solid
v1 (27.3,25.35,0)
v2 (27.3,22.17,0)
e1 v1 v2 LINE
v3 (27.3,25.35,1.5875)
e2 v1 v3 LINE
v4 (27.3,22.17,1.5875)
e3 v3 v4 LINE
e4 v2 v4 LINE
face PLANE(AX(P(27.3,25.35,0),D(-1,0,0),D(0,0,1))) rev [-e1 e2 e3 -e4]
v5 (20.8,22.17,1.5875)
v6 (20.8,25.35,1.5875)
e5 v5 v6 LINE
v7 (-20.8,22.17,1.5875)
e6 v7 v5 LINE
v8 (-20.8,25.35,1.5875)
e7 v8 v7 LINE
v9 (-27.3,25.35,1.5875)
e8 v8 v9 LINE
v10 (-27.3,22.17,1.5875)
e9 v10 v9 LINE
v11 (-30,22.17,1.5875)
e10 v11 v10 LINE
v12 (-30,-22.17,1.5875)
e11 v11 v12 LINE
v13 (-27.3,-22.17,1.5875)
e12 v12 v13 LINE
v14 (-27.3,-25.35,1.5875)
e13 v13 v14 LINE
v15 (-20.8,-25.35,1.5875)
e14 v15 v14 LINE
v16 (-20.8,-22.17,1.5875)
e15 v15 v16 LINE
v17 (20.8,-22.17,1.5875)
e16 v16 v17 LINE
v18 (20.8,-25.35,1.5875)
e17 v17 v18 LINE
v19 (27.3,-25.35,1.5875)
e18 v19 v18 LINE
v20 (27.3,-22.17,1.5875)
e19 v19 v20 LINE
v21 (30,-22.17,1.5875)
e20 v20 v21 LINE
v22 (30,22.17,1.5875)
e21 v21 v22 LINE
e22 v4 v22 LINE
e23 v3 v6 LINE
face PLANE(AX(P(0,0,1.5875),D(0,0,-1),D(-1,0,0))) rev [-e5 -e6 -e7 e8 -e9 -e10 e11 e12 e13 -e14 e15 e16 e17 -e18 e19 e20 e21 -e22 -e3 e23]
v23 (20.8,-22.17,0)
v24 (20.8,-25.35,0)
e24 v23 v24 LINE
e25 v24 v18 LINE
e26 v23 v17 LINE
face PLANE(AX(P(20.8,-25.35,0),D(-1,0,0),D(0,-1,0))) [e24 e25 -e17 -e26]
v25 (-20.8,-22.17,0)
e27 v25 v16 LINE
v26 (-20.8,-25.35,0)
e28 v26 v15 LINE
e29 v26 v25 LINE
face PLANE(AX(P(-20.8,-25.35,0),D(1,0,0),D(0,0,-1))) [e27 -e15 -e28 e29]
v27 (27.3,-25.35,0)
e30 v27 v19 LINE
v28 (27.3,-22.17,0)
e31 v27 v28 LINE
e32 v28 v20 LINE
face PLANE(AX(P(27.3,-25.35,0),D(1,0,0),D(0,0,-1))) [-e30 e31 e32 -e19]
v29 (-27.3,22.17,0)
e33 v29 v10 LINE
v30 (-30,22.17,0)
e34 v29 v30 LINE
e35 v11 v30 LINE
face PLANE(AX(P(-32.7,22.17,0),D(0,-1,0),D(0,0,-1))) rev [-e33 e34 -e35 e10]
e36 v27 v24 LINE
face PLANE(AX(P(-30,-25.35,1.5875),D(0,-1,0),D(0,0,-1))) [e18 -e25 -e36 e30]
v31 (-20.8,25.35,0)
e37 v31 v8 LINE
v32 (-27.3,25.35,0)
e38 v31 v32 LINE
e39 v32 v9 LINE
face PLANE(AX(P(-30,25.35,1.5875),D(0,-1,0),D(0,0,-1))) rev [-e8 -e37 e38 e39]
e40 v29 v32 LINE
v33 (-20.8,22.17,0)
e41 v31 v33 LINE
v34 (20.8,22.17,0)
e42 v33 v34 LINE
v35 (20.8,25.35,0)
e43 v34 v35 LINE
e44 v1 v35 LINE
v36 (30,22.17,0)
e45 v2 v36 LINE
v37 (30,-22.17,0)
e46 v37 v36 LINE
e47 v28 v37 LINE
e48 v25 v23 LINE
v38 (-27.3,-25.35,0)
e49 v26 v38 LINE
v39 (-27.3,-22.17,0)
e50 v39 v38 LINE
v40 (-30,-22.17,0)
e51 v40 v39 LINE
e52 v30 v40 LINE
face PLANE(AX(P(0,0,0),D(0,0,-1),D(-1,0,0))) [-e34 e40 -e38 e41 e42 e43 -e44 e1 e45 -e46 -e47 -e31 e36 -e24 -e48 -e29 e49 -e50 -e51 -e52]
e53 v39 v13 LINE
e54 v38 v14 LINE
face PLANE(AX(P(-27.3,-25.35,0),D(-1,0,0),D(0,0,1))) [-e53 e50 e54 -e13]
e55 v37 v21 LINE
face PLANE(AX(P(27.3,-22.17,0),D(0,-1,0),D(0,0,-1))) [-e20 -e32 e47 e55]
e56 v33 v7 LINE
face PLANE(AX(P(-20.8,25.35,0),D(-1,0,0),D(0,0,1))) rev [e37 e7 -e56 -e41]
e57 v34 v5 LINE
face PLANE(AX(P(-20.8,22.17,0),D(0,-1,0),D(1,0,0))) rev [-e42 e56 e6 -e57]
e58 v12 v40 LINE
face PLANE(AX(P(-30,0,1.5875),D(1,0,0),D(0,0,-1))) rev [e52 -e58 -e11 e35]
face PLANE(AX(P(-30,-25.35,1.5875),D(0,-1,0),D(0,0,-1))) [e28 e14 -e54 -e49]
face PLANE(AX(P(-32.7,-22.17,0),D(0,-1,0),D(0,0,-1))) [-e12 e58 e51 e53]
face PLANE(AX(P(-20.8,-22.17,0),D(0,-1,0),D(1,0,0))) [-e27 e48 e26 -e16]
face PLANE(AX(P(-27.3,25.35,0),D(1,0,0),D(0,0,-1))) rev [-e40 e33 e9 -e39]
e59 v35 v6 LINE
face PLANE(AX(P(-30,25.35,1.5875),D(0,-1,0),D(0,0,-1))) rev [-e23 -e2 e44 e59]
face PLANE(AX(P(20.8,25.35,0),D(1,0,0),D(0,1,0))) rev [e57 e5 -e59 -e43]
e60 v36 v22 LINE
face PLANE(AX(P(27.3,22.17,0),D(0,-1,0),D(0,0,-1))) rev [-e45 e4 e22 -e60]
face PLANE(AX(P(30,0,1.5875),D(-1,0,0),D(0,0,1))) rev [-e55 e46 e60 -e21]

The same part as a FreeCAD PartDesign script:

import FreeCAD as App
import Part
import Sketcher
from FreeCAD import Vector

doc = App.newDocument("Part")
body = doc.addObject("PartDesign::Body", "Body")

# Sketch on XY plane
sketch1 = doc.addObject("Sketcher::SketchObject", "Sketch")
body.addObject(sketch1)
sketch1.AttachmentSupport = (doc.XY_Plane, [""])
sketch1.MapMode = "FlatFace"
sketch1.addGeometry(Part.LineSegment(Vector(-30, 25, 0), Vector(-30, 0, 0)), False)
sketch1.addGeometry(Part.LineSegment(Vector(-30, 0, 0), Vector(30, 0, 0)), False)
sketch1.addGeometry(Part.LineSegment(Vector(30, 0, 0), Vector(30, 25, 0)), False)
sketch1.addGeometry(Part.LineSegment(Vector(30, 25, 0), Vector(-30, 25, 0)), False)
sketch1.addConstraint(Sketcher.Constraint("Coincident", 0, 2, 1, 1))
sketch1.addConstraint(Sketcher.Constraint("Coincident", 1, 2, 2, 1))
sketch1.addConstraint(Sketcher.Constraint("Coincident", 2, 2, 3, 1))
sketch1.addConstraint(Sketcher.Constraint("Coincident", 3, 2, 0, 1))
sketch1.addConstraint(Sketcher.Constraint("Vertical", 0))
sketch1.addConstraint(Sketcher.Constraint("Horizontal", 1))
sketch1.addConstraint(Sketcher.Constraint("Vertical", 2))
sketch1.addConstraint(Sketcher.Constraint("Horizontal", 3))
sketch1.addConstraint(Sketcher.Constraint("Symmetric", 0, 2, 1, 2, -1, 1))
sketch1.addConstraint(Sketcher.Constraint("DistanceX", 1, 1, 1, 2, 60.0))
sketch1.addConstraint(Sketcher.Constraint("DistanceY", 0, 2, 0, 1, 25.35))
pad1 = doc.addObject("PartDesign::Pad", "Pad")
body.addObject(pad1)
pad1.Profile = sketch1
pad1.Length = 1.5875

# Sketch on XY plane
sketch2 = doc.addObject("Sketcher::SketchObject", "Sketch001")
body.addObject(sketch2)
sketch2.AttachmentSupport = (doc.XY_Plane, [""])
sketch2.MapMode = "FlatFace"
sketch2.AttachmentOffset = App.Placement(Vector(0, 0, 1.5875), App.Rotation())
sketch2.addGeometry(Part.LineSegment(Vector(-20.8, 25.4, 0), Vector(-20.8, 22.2, 0)), False)
sketch2.addGeometry(Part.LineSegment(Vector(-20.8, 22.2, 0), Vector(20.8, 22.2, 0)), False)
sketch2.addGeometry(Part.LineSegment(Vector(20.8, 22.2, 0), Vector(20.8, 25.4, 0)), False)
sketch2.addGeometry(Part.LineSegment(Vector(20.8, 25.4, 0), Vector(-20.8, 25.4, 0)), False)
sketch2.addGeometry(Part.LineSegment(Vector(27.3, 25.4, 0), Vector(27.3, 22.2, 0)), False)
sketch2.addGeometry(Part.LineSegment(Vector(27.3, 22.2, 0), Vector(32.7, 22.2, 0)), False)
sketch2.addGeometry(Part.LineSegment(Vector(32.7, 22.2, 0), Vector(32.7, 25.4, 0)), False)
sketch2.addGeometry(Part.LineSegment(Vector(32.7, 25.4, 0), Vector(27.3, 25.4, 0)), False)
sketch2.addGeometry(Part.LineSegment(Vector(-32.7, 25.4, 0), Vector(-32.7, 22.2, 0)), False)
sketch2.addGeometry(Part.LineSegment(Vector(-32.7, 22.2, 0), Vector(-27.3, 22.2, 0)), False)
sketch2.addGeometry(Part.LineSegment(Vector(-27.3, 22.2, 0), Vector(-27.3, 25.4, 0)), False)
sketch2.addGeometry(Part.LineSegment(Vector(-27.3, 25.4, 0), Vector(-32.7, 25.4, 0)), False)
sketch2.addConstraint(Sketcher.Constraint("Coincident", 0, 2, 1, 1))
sketch2.addConstraint(Sketcher.Constraint("Coincident", 1, 2, 2, 1))
sketch2.addConstraint(Sketcher.Constraint("Coincident", 2, 2, 3, 1))
sketch2.addConstraint(Sketcher.Constraint("Coincident", 3, 2, 0, 1))
sketch2.addConstraint(Sketcher.Constraint("Coincident", 4, 2, 5, 1))
sketch2.addConstraint(Sketcher.Constraint("Coincident", 5, 2, 6, 1))
sketch2.addConstraint(Sketcher.Constraint("Coincident", 6, 2, 7, 1))
sketch2.addConstraint(Sketcher.Constraint("Coincident", 7, 2, 4, 1))
sketch2.addConstraint(Sketcher.Constraint("Coincident", 8, 2, 9, 1))
sketch2.addConstraint(Sketcher.Constraint("Coincident", 9, 2, 10, 1))
sketch2.addConstraint(Sketcher.Constraint("Coincident", 10, 2, 11, 1))
sketch2.addConstraint(Sketcher.Constraint("Coincident", 11, 2, 8, 1))
sketch2.addConstraint(Sketcher.Constraint("Vertical", 0))
sketch2.addConstraint(Sketcher.Constraint("Horizontal", 1))
sketch2.addConstraint(Sketcher.Constraint("Vertical", 2))
sketch2.addConstraint(Sketcher.Constraint("Horizontal", 3))
sketch2.addConstraint(Sketcher.Constraint("Vertical", 4))
sketch2.addConstraint(Sketcher.Constraint("Horizontal", 5))
sketch2.addConstraint(Sketcher.Constraint("Vertical", 6))
sketch2.addConstraint(Sketcher.Constraint("Horizontal", 7))
sketch2.addConstraint(Sketcher.Constraint("Vertical", 8))
sketch2.addConstraint(Sketcher.Constraint("Horizontal", 9))
sketch2.addConstraint(Sketcher.Constraint("Vertical", 10))
sketch2.addConstraint(Sketcher.Constraint("Horizontal", 11))
sketch2.addConstraint(Sketcher.Constraint("Symmetric", 5, 2, 8, 2, -2))
sketch2.addConstraint(Sketcher.Constraint("Symmetric", 7, 2, 10, 2, -2))
sketch2.addConstraint(Sketcher.Constraint("Horizontal", 1, 2, 4, 2))
sketch2.addConstraint(Sketcher.Constraint("Horizontal", 3, 2, 6, 2))
sketch2.addConstraint(Sketcher.Constraint("DistanceX", 1, 1, 1, 2, 41.6))
sketch2.addConstraint(Sketcher.Constraint("DistanceX", 5, 1, 5, 2, 5.4))
sketch2.addConstraint(Sketcher.Constraint("DistanceX", 8, 2, 4, 2, 60.0))
sketch2.addConstraint(Sketcher.Constraint("DistanceY", 0, 2, 0, 1, 3.18))
sketch2.addConstraint(Sketcher.Constraint("DistanceX", 0, 2, -1, 1, 20.8))
sketch2.addConstraint(Sketcher.Constraint("DistanceY", -1, 1, 0, 2, 22.17))
pocket1 = doc.addObject("PartDesign::Pocket", "Pocket")
body.addObject(pocket1)
pocket1.Profile = sketch2
pocket1.Length = 1.5875
doc.recompute()

mirrored = doc.addObject("PartDesign::Mirrored", "Mirrored")
body.addObject(mirrored)
mirrored.Originals = [pad1, pocket1]
mirrored.MirrorPlane = (doc.XZ_Plane, [""])
body.Tip = mirrored

doc.recompute()
